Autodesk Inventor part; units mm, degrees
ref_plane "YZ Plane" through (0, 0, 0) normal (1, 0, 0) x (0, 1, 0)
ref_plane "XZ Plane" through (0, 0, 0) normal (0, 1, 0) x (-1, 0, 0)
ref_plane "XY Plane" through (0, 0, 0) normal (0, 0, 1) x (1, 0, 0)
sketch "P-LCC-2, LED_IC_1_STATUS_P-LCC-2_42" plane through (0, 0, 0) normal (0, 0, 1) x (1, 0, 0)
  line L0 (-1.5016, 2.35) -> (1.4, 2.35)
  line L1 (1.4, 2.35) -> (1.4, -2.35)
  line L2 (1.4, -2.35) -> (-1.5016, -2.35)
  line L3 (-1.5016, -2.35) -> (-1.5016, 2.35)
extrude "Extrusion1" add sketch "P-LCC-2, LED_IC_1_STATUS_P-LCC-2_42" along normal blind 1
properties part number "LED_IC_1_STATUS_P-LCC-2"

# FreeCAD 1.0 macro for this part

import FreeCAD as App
import Part
import Sketcher

V = App.Vector

doc = App.newDocument("Part")
params = doc.addObject("Spreadsheet::Sheet", "Params")
for row, (alias, value) in enumerate([
    ("sketch1_height", "4.7 mm"),
    ("pad1_length", "1 mm"),
], start=1):
    params.set(f"A{row}", alias)
    params.set(f"B{row}", "=" + value)
    params.setAlias(f"B{row}", alias)

body = doc.addObject("PartDesign::Body", "Body")

sketch1 = body.newObject("Sketcher::SketchObject", "Sketch")
sketch1.AttachmentSupport = (doc.getObject("XY_Plane"), [""])
sketch1.MapMode = "FlatFace"
sketch1.addGeometry(Part.LineSegment(V(1.4, 2.4, 0), V(-1.5, 2.4, 0)), False)
sketch1.addGeometry(Part.LineSegment(V(-1.5, 2.4, 0), V(-1.5, -2.4, 0)), False)
sketch1.addGeometry(Part.LineSegment(V(-1.5, -2.4, 0), V(1.4, -2.4, 0)), False)
sketch1.addGeometry(Part.LineSegment(V(1.4, -2.4, 0), V(1.4, 2.4, 0)), False)
sketch1.addConstraint(Sketcher.Constraint("Coincident", 0, 2, 1, 1))
sketch1.addConstraint(Sketcher.Constraint("Coincident", 1, 2, 2, 1))
sketch1.addConstraint(Sketcher.Constraint("Coincident", 2, 2, 3, 1))
sketch1.addConstraint(Sketcher.Constraint("Coincident", 3, 2, 0, 1))
sketch1.addConstraint(Sketcher.Constraint("Horizontal", 0))
sketch1.addConstraint(Sketcher.Constraint("Vertical", 1))
sketch1.addConstraint(Sketcher.Constraint("Horizontal", 2))
sketch1.addConstraint(Sketcher.Constraint("Vertical", 3))
sketch1.addConstraint(Sketcher.Constraint("DistanceY", 1, 2, 1, 1, 4.7))
sketch1.addConstraint(Sketcher.Constraint("DistanceX", -1, 1, 2, 2, 1.4))
sketch1.addConstraint(Sketcher.Constraint("DistanceY", -1, 1, 0, 2, 2.35))
sketch1.addConstraint(Sketcher.Constraint("DistanceX", 0, 2, 0, 1, 2.9016))
sketch1.setExpression("Constraints[8]", "Params.sketch1_height")
pad1 = body.newObject("PartDesign::Pad", "Pad")
pad1.Profile = sketch1
pad1.setExpression("Length", "Params.pad1_length")

doc.recompute()
